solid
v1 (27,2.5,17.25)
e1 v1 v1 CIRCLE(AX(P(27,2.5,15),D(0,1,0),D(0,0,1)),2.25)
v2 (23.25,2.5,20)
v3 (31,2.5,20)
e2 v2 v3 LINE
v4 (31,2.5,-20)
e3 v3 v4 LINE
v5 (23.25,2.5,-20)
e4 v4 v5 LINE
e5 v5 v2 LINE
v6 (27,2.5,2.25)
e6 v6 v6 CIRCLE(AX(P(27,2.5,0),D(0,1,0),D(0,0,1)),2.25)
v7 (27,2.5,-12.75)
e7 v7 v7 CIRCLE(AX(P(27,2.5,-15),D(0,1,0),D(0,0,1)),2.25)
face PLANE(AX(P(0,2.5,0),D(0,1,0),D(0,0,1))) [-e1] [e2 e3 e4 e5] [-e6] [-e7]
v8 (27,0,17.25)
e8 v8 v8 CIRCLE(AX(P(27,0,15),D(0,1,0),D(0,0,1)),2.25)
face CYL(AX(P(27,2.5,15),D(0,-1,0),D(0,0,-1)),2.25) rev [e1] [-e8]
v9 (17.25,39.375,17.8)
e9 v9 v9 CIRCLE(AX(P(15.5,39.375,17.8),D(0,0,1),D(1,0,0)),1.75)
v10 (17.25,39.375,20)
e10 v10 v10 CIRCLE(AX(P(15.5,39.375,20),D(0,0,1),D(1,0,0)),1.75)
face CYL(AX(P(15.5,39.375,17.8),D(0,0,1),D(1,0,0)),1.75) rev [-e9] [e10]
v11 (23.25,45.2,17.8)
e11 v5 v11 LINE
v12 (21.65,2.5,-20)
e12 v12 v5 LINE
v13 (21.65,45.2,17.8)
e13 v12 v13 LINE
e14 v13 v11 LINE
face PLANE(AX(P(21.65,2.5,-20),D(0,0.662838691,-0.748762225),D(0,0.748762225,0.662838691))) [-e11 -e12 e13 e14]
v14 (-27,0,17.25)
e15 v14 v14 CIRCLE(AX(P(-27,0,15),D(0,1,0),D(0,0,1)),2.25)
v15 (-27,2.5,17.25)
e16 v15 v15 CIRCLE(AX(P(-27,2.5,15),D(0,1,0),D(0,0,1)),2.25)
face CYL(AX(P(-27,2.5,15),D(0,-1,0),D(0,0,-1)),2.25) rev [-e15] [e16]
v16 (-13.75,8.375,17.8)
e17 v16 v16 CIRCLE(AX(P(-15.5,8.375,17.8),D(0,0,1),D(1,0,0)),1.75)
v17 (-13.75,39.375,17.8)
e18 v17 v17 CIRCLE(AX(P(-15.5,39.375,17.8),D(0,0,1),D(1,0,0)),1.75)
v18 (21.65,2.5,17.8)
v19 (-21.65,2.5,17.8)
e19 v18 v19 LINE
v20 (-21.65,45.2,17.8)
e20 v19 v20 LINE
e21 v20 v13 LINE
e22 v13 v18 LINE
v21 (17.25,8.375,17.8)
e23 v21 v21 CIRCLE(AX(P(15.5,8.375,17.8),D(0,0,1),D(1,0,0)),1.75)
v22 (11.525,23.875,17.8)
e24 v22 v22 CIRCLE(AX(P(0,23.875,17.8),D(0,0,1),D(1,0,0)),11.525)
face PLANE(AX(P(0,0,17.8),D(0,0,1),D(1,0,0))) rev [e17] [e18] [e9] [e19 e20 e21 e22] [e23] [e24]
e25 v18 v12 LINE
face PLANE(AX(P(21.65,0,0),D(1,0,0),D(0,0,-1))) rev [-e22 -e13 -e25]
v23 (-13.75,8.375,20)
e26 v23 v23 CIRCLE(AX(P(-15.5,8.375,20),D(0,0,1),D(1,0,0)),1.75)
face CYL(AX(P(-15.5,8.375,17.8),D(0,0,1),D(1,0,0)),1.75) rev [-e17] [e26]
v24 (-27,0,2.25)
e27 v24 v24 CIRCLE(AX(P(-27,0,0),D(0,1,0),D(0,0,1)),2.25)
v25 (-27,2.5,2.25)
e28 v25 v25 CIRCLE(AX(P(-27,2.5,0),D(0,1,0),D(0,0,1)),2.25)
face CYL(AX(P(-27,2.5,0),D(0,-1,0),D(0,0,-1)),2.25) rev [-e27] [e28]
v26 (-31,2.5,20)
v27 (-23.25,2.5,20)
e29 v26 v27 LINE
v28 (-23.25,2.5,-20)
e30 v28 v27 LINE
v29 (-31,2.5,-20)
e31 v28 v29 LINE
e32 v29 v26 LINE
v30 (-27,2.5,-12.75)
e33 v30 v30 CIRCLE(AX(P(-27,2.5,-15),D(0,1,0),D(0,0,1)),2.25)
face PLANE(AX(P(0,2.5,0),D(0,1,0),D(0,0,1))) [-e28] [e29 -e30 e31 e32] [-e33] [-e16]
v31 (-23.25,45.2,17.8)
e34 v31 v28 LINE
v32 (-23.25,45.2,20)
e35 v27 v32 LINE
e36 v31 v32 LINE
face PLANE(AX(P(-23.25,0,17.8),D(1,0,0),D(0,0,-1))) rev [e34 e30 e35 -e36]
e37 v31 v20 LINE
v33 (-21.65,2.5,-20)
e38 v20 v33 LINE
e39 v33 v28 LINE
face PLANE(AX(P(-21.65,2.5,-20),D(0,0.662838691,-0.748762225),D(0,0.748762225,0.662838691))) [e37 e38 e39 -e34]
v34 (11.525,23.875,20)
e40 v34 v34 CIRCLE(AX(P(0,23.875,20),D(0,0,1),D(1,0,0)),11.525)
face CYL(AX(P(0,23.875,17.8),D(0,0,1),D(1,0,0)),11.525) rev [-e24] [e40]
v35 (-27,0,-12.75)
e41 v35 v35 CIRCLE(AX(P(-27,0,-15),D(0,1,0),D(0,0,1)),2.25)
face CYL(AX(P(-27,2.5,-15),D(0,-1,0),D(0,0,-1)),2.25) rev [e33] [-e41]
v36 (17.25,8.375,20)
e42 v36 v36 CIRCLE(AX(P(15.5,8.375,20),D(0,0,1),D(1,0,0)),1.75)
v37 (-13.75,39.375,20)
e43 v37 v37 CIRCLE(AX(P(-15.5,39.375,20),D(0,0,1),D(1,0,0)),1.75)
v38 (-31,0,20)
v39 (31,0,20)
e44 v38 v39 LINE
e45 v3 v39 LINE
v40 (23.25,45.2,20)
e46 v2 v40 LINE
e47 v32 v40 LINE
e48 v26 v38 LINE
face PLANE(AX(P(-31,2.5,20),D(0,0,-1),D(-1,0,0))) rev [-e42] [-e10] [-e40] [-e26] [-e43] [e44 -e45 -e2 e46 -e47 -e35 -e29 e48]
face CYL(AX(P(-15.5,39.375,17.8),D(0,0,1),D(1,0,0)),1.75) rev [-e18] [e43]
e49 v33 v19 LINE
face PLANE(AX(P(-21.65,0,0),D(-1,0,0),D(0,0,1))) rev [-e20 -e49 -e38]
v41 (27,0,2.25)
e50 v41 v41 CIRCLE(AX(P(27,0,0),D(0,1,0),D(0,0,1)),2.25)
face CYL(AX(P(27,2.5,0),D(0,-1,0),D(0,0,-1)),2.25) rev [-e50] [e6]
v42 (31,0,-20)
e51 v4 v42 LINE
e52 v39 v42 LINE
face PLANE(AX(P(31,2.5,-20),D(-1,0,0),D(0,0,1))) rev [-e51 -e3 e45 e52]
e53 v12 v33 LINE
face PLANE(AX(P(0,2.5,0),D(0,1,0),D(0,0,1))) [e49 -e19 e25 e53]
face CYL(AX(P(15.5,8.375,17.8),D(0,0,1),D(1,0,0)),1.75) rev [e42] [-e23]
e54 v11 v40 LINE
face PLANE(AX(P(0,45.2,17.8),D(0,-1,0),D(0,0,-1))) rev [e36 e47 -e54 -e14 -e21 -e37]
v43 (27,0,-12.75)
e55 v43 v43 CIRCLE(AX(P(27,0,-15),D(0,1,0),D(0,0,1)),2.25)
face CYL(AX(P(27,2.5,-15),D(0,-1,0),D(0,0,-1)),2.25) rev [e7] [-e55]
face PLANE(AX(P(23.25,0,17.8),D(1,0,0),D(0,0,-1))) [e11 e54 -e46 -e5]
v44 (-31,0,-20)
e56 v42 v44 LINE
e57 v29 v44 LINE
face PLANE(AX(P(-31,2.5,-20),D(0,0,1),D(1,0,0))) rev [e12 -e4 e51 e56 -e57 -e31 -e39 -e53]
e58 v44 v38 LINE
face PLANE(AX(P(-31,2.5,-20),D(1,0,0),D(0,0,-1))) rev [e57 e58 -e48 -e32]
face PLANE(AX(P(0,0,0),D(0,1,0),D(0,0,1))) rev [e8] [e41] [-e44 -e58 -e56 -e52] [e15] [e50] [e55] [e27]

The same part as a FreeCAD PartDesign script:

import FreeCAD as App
import Part
import Sketcher
from FreeCAD import Vector


def add_polygon(sketch, points):
    """Adds a closed chain of lines whose ends are joined by coincident constraints."""
    first, n = sketch.GeometryCount, len(points)
    for a, b in zip(points, points[1:] + points[:1]):
        sketch.addGeometry(Part.LineSegment(App.Vector(*a, 0), App.Vector(*b, 0)), False)
    for i in range(n):
        sketch.addConstraint(Sketcher.Constraint("Coincident", first + i, 2, first + (i + 1) % n, 1))

doc = App.newDocument("Part")
body = doc.addObject("PartDesign::Body", "Body")

# Sketch on XZ plane
sketch1 = body.newObject("Sketcher::SketchObject", "Sketch")
sketch1.AttachmentSupport = (doc.getObject("XZ_Plane"), [""])
sketch1.MapMode = "FlatFace"
add_polygon(sketch1, [(-31, -20), (-31, 20), (31, 20), (31, -20)])  # lines 0-3
sketch1.addGeometry(Part.Circle(Vector(-27, 15, 0), Vector(0, 0, 1), 2.25), False)  # 4
sketch1.addGeometry(Part.Circle(Vector(27, 15, 0), Vector(0, 0, 1), 2.25), False)  # 5
sketch1.addGeometry(Part.Circle(Vector(-27, 0, 0), Vector(0, 0, 1), 2.25), False)  # 6
sketch1.addGeometry(Part.Circle(Vector(-27, -15, 0), Vector(0, 0, 1), 2.25), False)  # 7
sketch1.addGeometry(Part.Circle(Vector(27, 0, 0), Vector(0, 0, 1), 2.25), False)  # 8
sketch1.addGeometry(Part.Circle(Vector(27, -15, 0), Vector(0, 0, 1), 2.25), False)  # 9
sketch1.addConstraint(Sketcher.Constraint("Vertical", 0))
sketch1.addConstraint(Sketcher.Constraint("Horizontal", 1))
sketch1.addConstraint(Sketcher.Constraint("Vertical", 2))
sketch1.addConstraint(Sketcher.Constraint("Horizontal", 3))
sketch1.addConstraint(Sketcher.Constraint("Equal", 4, 5))
sketch1.addConstraint(Sketcher.Constraint("Equal", 5, 6))
sketch1.addConstraint(Sketcher.Constraint("Equal", 6, 7))
sketch1.addConstraint(Sketcher.Constraint("Equal", 7, 8))
sketch1.addConstraint(Sketcher.Constraint("Equal", 8, 9))
sketch1.addConstraint(Sketcher.Constraint("Symmetric", 5, 3, 7, 3, -1, 1))
sketch1.addConstraint(Sketcher.Constraint("Symmetric", 6, 3, 8, 3, -1, 1))
sketch1.addConstraint(Sketcher.Constraint("Symmetric", 4, 3, 9, 3, -1, 1))
sketch1.addConstraint(Sketcher.Constraint("Symmetric", 0, 2, 2, 2, -1, 1))
sketch1.addConstraint(Sketcher.Constraint("Symmetric", 4, 3, 5, 3, -2))
sketch1.addConstraint(Sketcher.Constraint("PointOnObject", 6, 3, -1))
sketch1.addConstraint(Sketcher.Constraint("Vertical", 4, 3, 6, 3))
sketch1.addConstraint(Sketcher.Constraint("Diameter", 4, 4.5))
sketch1.addConstraint(Sketcher.Constraint("DistanceX", 1, 1, 1, 2, 62.0))
sketch1.addConstraint(Sketcher.Constraint("DistanceY", 0, 1, 0, 2, 40.0))
sketch1.addConstraint(Sketcher.Constraint("DistanceX", 4, 3, -1, 1, 27.0))
sketch1.addConstraint(Sketcher.Constraint("DistanceY", -1, 1, 4, 3, 15.0))
pad1 = body.newObject("PartDesign::Pad", "Pad")
pad1.Profile = sketch1
pad1.Length = 2.5
pad1.Reversed = True

# Sketch on XY plane
sketch2 = body.newObject("Sketcher::SketchObject", "Sketch001")
sketch2.AttachmentSupport = (doc.getObject("XY_Plane"), [""])
sketch2.MapMode = "FlatFace"
sketch2.AttachmentOffset = App.Placement(Vector(0, 0, 20), App.Rotation())
add_polygon(sketch2, [(-23.25, 45.2), (-23.25, 2.5), (23.25, 2.5), (23.25, 45.2)])  # lines 0-3
sketch2.addGeometry(Part.Circle(Vector(-15.5, 8.375, 0), Vector(0, 0, 1), 1.75), False)  # 4
sketch2.addGeometry(Part.Circle(Vector(15.5, 8.375, 0), Vector(0, 0, 1), 1.75), False)  # 5
sketch2.addGeometry(Part.Circle(Vector(-15.5, 39.375, 0), Vector(0, 0, 1), 1.75), False)  # 6
sketch2.addGeometry(Part.Circle(Vector(0, 23.875, 0), Vector(0, 0, 1), 11.525), False)  # 7
sketch2.addGeometry(Part.Circle(Vector(15.5, 39.375, 0), Vector(0, 0, 1), 1.75), False)  # 8
sketch2.addConstraint(Sketcher.Constraint("Vertical", 0))
sketch2.addConstraint(Sketcher.Constraint("Horizontal", 1))
sketch2.addConstraint(Sketcher.Constraint("Vertical", 2))
sketch2.addConstraint(Sketcher.Constraint("Horizontal", 3))
sketch2.addConstraint(Sketcher.Constraint("Equal", 4, 5))
sketch2.addConstraint(Sketcher.Constraint("Equal", 5, 6))
sketch2.addConstraint(Sketcher.Constraint("Equal", 6, 8))
sketch2.addConstraint(Sketcher.Constraint("Symmetric", 4, 3, 5, 3, -2))
sketch2.addConstraint(Sketcher.Constraint("Symmetric", 6, 3, 8, 3, -2))
sketch2.addConstraint(Sketcher.Constraint("PointOnObject", 7, 3, -2))
sketch2.addConstraint(Sketcher.Constraint("Vertical", 4, 3, 6, 3))
sketch2.addConstraint(Sketcher.Constraint("Diameter", 4, 3.5))
sketch2.addConstraint(Sketcher.Constraint("Diameter", 7, 23.05))
sketch2.addConstraint(Sketcher.Constraint("DistanceX", 1, 1, 1, 2, 46.5))
sketch2.addConstraint(Sketcher.Constraint("DistanceY", 0, 2, 0, 1, 42.7))
sketch2.addConstraint(Sketcher.Constraint("DistanceX", 4, 3, 5, 3, 31.0))
sketch2.addConstraint(Sketcher.Constraint("DistanceY", 4, 3, 6, 3, 31.0))
sketch2.addConstraint(Sketcher.Constraint("DistanceY", -1, 1, 0, 2, 2.5))
sketch2.addConstraint(Sketcher.Constraint("DistanceY", 4, 3, 7, 3, 15.5))
sketch2.addConstraint(Sketcher.Constraint("DistanceX", 0, 2, -1, 1, 23.25))
sketch2.addConstraint(Sketcher.Constraint("DistanceY", -1, 1, 4, 3, 8.375))
pad2 = body.newObject("PartDesign::Pad", "Pad001")
pad2.Profile = sketch2
pad2.Length = 2.2
pad2.Reversed = True

# Sketch on YZ plane
sketch3 = body.newObject("Sketcher::SketchObject", "Sketch002")
sketch3.AttachmentSupport = (doc.getObject("YZ_Plane"), [""])
sketch3.MapMode = "FlatFace"
sketch3.AttachmentOffset = App.Placement(Vector(0, 0, -23.25), App.Rotation())
add_polygon(sketch3, [(45.2, 17.8), (2.5, -20), (2.5, 17.8)])  # lines 0-2
sketch3.addConstraint(Sketcher.Constraint("Vertical", 1))
sketch3.addConstraint(Sketcher.Constraint("Horizontal", 2))
sketch3.addConstraint(Sketcher.Constraint("DistanceX", 2, 1, 2, 2, 42.7))
sketch3.addConstraint(Sketcher.Constraint("DistanceY", 1, 1, 1, 2, 37.8))
sketch3.addConstraint(Sketcher.Constraint("DistanceY", 0, 2, -1, 1, 20.0))
sketch3.addConstraint(Sketcher.Constraint("DistanceX", -1, 1, 0, 2, 2.5))
pad3 = body.newObject("PartDesign::Pad", "Pad002")
pad3.Profile = sketch3
pad3.Length = 1.6

# Sketch on YZ plane
sketch4 = body.newObject("Sketcher::SketchObject", "Sketch003")
sketch4.AttachmentSupport = (doc.getObject("YZ_Plane"), [""])
sketch4.MapMode = "FlatFace"
sketch4.AttachmentOffset = App.Placement(Vector(0, 0, 23.25), App.Rotation())
add_polygon(sketch4, [(2.5, 17.8), (2.5, -20), (45.2, 17.8)])  # lines 0-2
sketch4.addConstraint(Sketcher.Constraint("Vertical", 0))
sketch4.addConstraint(Sketcher.Constraint("Horizontal", 2))
sketch4.addConstraint(Sketcher.Constraint("DistanceX", 2, 2, 2, 1, 42.7))
sketch4.addConstraint(Sketcher.Constraint("DistanceY", 0, 2, 0, 1, 37.8))
sketch4.addConstraint(Sketcher.Constraint("DistanceY", 0, 2, -1, 1, 20.0))
sketch4.addConstraint(Sketcher.Constraint("DistanceX", -1, 1, 0, 2, 2.5))
pad4 = body.newObject("PartDesign::Pad", "Pad003")
pad4.Profile = sketch4
pad4.Length = 1.6
pad4.Reversed = True

doc.recompute()
